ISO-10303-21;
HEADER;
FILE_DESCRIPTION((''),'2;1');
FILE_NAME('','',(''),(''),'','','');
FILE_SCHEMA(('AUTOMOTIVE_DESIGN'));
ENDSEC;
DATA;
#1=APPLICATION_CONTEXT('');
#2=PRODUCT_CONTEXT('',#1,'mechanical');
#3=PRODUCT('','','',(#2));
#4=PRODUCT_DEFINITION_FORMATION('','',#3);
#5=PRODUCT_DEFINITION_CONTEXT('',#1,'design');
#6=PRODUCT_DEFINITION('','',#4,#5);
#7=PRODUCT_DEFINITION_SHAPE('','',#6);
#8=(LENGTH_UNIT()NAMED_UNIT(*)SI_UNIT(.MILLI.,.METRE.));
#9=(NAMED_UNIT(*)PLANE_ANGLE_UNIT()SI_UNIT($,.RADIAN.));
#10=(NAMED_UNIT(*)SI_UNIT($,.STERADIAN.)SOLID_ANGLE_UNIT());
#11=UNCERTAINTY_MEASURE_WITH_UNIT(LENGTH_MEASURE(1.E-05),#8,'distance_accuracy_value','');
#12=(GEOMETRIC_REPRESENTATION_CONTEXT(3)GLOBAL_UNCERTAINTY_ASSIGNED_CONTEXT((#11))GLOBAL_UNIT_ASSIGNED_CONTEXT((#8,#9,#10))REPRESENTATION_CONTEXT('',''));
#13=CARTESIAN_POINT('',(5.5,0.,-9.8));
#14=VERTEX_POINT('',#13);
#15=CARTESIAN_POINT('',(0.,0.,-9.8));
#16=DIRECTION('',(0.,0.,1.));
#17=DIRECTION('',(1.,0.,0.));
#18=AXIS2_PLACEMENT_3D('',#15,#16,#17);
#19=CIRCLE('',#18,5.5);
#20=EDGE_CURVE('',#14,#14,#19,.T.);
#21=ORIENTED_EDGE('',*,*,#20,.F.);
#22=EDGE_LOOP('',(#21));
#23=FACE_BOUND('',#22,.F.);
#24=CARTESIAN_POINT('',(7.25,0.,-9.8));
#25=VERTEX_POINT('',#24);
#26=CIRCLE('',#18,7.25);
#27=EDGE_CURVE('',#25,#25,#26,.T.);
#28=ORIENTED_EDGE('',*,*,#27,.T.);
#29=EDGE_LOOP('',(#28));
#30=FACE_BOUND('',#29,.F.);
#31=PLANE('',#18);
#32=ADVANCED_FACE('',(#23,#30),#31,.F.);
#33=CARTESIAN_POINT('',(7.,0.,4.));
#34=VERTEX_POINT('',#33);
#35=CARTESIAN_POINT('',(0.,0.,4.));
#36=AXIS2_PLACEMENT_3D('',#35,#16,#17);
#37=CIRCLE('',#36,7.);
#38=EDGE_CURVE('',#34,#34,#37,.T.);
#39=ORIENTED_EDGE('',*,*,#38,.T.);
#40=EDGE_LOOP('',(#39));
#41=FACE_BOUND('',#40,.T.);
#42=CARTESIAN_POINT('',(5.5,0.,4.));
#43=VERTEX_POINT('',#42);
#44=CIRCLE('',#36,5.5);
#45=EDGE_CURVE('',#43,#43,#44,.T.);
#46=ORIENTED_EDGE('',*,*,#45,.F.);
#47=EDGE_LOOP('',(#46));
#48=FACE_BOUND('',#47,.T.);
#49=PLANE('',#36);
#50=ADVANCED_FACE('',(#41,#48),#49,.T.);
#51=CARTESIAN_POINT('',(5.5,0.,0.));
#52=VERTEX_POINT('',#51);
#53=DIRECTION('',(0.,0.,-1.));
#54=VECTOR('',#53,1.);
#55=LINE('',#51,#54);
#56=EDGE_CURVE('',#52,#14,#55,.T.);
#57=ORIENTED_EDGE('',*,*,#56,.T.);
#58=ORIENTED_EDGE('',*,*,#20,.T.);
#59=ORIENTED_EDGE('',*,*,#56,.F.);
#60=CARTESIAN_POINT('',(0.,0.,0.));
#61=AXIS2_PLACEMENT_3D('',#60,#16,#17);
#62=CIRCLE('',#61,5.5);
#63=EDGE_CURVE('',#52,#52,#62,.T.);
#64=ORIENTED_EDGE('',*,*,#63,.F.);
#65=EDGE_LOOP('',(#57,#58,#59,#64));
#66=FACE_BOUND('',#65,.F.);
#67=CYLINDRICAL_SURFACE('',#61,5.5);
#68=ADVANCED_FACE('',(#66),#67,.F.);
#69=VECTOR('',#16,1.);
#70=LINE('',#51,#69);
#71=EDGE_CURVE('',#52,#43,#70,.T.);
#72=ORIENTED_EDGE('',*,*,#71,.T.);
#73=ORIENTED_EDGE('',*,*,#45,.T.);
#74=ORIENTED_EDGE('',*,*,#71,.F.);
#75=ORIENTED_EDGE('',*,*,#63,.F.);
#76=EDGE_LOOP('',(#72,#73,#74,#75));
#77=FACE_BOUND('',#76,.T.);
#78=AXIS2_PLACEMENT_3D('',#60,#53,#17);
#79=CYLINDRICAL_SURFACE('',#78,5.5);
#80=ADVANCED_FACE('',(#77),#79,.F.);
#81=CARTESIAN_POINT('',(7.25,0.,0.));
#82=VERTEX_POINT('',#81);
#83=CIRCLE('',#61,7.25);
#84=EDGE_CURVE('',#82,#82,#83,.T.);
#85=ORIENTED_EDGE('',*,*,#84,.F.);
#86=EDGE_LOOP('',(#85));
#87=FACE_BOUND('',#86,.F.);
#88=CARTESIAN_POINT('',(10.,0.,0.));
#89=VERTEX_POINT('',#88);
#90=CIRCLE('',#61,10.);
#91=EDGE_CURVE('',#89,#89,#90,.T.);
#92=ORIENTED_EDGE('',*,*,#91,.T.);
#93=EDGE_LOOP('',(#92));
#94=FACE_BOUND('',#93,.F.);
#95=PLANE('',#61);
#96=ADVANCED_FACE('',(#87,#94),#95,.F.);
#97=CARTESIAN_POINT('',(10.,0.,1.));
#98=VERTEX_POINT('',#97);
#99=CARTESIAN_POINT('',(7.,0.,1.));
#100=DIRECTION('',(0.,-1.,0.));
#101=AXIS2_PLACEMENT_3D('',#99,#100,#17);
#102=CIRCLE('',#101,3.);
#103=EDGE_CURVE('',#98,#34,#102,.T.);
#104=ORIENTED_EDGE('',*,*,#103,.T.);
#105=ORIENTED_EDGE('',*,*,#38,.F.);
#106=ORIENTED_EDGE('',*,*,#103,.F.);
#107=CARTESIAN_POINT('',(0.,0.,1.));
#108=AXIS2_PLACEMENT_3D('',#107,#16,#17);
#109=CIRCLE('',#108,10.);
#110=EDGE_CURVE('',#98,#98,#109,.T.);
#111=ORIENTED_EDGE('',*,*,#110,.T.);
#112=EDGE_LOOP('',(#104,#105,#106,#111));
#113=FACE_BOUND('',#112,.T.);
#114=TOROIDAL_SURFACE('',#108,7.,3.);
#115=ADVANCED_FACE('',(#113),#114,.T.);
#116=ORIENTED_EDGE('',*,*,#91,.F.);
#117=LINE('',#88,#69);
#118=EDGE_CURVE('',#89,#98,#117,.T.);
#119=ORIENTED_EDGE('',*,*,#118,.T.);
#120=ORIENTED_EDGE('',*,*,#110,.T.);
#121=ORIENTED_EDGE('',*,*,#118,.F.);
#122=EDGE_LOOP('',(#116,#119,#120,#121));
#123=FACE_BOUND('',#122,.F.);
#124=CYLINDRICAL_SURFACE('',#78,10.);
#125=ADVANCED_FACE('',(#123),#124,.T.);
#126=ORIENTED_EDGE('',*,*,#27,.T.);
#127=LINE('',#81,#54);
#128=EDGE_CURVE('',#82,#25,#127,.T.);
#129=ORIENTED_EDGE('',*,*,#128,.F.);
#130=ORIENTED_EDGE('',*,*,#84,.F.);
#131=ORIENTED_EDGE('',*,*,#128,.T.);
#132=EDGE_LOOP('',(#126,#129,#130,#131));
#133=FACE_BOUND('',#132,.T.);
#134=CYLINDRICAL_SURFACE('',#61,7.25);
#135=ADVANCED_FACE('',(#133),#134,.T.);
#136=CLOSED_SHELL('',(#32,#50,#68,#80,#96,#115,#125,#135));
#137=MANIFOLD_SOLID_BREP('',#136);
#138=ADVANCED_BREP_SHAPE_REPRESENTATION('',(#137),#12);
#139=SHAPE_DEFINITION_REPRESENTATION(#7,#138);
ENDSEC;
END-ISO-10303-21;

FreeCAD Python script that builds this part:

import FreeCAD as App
import Part
import Sketcher
from FreeCAD import Vector
Q = App.Units.Quantity


def edges_at(feature, points):
    """Names of the edges that pass closest to the given points."""
    edges = feature.Shape.Edges
    near = lambda p: min(range(len(edges)), key=lambda i: edges[i].distToShape(Part.Vertex(*p))[0])
    return sorted({f"Edge{near(p) + 1}" for p in points})

doc = App.newDocument("Part")
params = doc.addObject("Spreadsheet::Sheet", "Params")
for row, (alias, value) in enumerate([
    ("sketch1_diameter", "20 mm"),
    ("sketch1_diameter2", "11 mm"),
    ("pad1_length", "4 mm"),
    ("fillet_radius", "3 mm"),
    ("sketch2_diameter", "11 mm"),
    ("sketch2_diameter2", "14.5 mm"),
    ("pad2_length", "9.8 mm"),
], start=1):
    params.set(f"A{row}", alias)
    params.set(f"B{row}", "=" + value)
    params.setAlias(f"B{row}", alias)

body = doc.addObject("PartDesign::Body", "Body")

# Sketch on XY plane
sketch1 = body.newObject("Sketcher::SketchObject", "Sketch")
sketch1.AttachmentSupport = (doc.getObject("XY_Plane"), [""])
sketch1.MapMode = "FlatFace"
sketch1.addGeometry([
    Part.Circle(Vector(0, 0, 0), Vector(0, 0, 1), 10),
    Part.Circle(Vector(0, 0, 0), Vector(0, 0, 1), 5.5),
], False)
sketch1.addConstraint([
    Sketcher.Constraint("Coincident", 0, 3, -1, 1),
    Sketcher.Constraint("Coincident", 1, 3, -1, 1),
    Sketcher.Constraint("Diameter", 0, Q("20 mm")),
    Sketcher.Constraint("Diameter", 1, Q("11 mm")),
])
sketch1.setExpression("Constraints[2]", "Params.sketch1_diameter")
sketch1.setExpression("Constraints[3]", "Params.sketch1_diameter2")
pad1 = body.newObject("PartDesign::Pad", "Pad")
pad1.Profile = sketch1
pad1.setExpression("Length", "Params.pad1_length")
doc.recompute()

fillet = body.newObject("PartDesign::Fillet", "Fillet")
fillet.Base = (pad1, edges_at(pad1, [(-10, 0, 4)]))
fillet.setExpression("Radius", "Params.fillet_radius")

# Sketch on XY plane
sketch2 = body.newObject("Sketcher::SketchObject", "Sketch001")
sketch2.AttachmentSupport = (doc.getObject("XY_Plane"), [""])
sketch2.MapMode = "FlatFace"
sketch2.addGeometry([
    Part.Circle(Vector(0, 0, 0), Vector(0, 0, 1), 7.25),
    Part.Circle(Vector(0, 0, 0), Vector(0, 0, 1), 5.5),
], False)
sketch2.addConstraint([
    Sketcher.Constraint("Coincident", 0, 3, -1, 1),
    Sketcher.Constraint("Coincident", 1, 3, -1, 1),
    Sketcher.Constraint("Diameter", 1, Q("11 mm")),
    Sketcher.Constraint("Diameter", 0, Q("14.5 mm")),
])
sketch2.setExpression("Constraints[2]", "Params.sketch2_diameter")
sketch2.setExpression("Constraints[3]", "Params.sketch2_diameter2")
pad2 = body.newObject("PartDesign::Pad", "Pad001")
pad2.Profile = sketch2
pad2.setExpression("Length", "Params.pad2_length")
pad2.Reversed = True

doc.recompute()
